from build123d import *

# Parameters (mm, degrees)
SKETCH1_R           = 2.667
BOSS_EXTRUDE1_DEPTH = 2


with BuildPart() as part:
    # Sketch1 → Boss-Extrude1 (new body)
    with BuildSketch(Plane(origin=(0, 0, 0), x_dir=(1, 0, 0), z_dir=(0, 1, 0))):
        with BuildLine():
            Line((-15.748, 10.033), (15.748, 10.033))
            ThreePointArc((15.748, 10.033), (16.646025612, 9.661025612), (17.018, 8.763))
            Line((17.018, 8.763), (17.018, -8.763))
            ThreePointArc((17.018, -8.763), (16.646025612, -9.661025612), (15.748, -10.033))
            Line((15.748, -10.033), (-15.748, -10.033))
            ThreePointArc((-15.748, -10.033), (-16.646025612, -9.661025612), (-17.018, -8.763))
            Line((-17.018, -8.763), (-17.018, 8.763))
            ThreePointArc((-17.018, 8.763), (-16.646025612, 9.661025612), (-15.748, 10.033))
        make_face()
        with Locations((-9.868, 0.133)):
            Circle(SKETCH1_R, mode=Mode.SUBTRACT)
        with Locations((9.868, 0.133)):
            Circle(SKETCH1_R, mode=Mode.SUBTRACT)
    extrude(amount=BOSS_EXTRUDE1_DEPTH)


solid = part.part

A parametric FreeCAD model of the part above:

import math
import FreeCAD as App
import Part
import Sketcher
from FreeCAD import Vector
Q = App.Units.Quantity

doc = App.newDocument("Part")
body = doc.addObject("PartDesign::Body", "Body")

sketch1 = body.newObject("Sketcher::SketchObject", "Sketch")
sketch1.AttachmentSupport = (doc.getObject("XZ_Plane"), [""])
sketch1.MapMode = "FlatFace"
sketch1.addGeometry(Part.LineSegment(Vector(15.748, -10.033, 0), Vector(-15.748, -10.033, 0)), False)
sketch1.addGeometry(Part.ArcOfCircle(Part.Circle(Vector(-15.748, -8.763, 0), Vector(0, 0, 1), 1.27), math.radians(180), math.radians(270)), False)
sketch1.addGeometry(Part.LineSegment(Vector(-17.018, -8.763, 0), Vector(-17.018, 8.763, 0)), False)
sketch1.addGeometry(Part.ArcOfCircle(Part.Circle(Vector(-15.748, 8.763, 0), Vector(0, 0, 1), 1.27), math.radians(90), math.radians(180)), False)
sketch1.addGeometry(Part.LineSegment(Vector(-15.748, 10.033, 0), Vector(15.748, 10.033, 0)), False)
sketch1.addGeometry(Part.ArcOfCircle(Part.Circle(Vector(15.748, 8.763, 0), Vector(0, 0, 1), 1.27), math.radians(0), math.radians(90)), False)
sketch1.addGeometry(Part.LineSegment(Vector(17.018, 8.763, 0), Vector(17.018, -8.763, 0)), False)
sketch1.addGeometry(Part.ArcOfCircle(Part.Circle(Vector(15.748, -8.763, 0), Vector(0, 0, 1), 1.27), math.radians(-90), math.radians(0)), False)
sketch1.addGeometry(Part.Circle(Vector(9.868, -0.133, 0), Vector(0, 0, 1), 2.667), False)
sketch1.addGeometry(Part.Circle(Vector(-9.868, -0.133, 0), Vector(0, 0, 1), 2.667), False)
sketch1.addConstraint(Sketcher.Constraint("Tangent", 0, 2, 1, 2))
sketch1.addConstraint(Sketcher.Constraint("Tangent", 1, 1, 2, 1))
sketch1.addConstraint(Sketcher.Constraint("Tangent", 2, 2, 3, 2))
sketch1.addConstraint(Sketcher.Constraint("Tangent", 3, 1, 4, 1))
sketch1.addConstraint(Sketcher.Constraint("Tangent", 4, 2, 5, 2))
sketch1.addConstraint(Sketcher.Constraint("Tangent", 5, 1, 6, 1))
sketch1.addConstraint(Sketcher.Constraint("Tangent", 6, 2, 7, 2))
sketch1.addConstraint(Sketcher.Constraint("Tangent", 7, 1, 0, 1))
sketch1.addConstraint(Sketcher.Constraint("Horizontal", 0))
sketch1.addConstraint(Sketcher.Constraint("Vertical", 2))
sketch1.addConstraint(Sketcher.Constraint("Horizontal", 4))
sketch1.addConstraint(Sketcher.Constraint("Vertical", 6))
sketch1.addConstraint(Sketcher.Constraint("Equal", 1, 3))
sketch1.addConstraint(Sketcher.Constraint("Equal", 3, 5))
sketch1.addConstraint(Sketcher.Constraint("Equal", 5, 7))
sketch1.addConstraint(Sketcher.Constraint("Equal", 8, 9))
sketch1.addConstraint(Sketcher.Constraint("Symmetric", 1, 3, 5, 3, -1, 1))
sketch1.addConstraint(Sketcher.Constraint("Symmetric", 8, 3, 9, 3, -2))
sketch1.addConstraint(Sketcher.Constraint("Diameter", 8, Q("0.21 in")))
sketch1.addConstraint(Sketcher.Constraint("Radius", 1, Q("0.05 in")))
sketch1.addConstraint(Sketcher.Constraint("DistanceX", 0, 2, 0, 1, Q("1.24 in")))
sketch1.addConstraint(Sketcher.Constraint("DistanceY", 2, 1, 2, 2, Q("0.69 in")))
sketch1.addConstraint(Sketcher.Constraint("DistanceX", -1, 1, 8, 3, Q("9.868 mm")))
sketch1.addConstraint(Sketcher.Constraint("DistanceY", 8, 3, -1, 1, Q("0.133 mm")))
pad1 = body.newObject("PartDesign::Pad", "Pad")
pad1.Profile = sketch1
pad1.Length = 2
pad1.Reversed = True

doc.recompute()
